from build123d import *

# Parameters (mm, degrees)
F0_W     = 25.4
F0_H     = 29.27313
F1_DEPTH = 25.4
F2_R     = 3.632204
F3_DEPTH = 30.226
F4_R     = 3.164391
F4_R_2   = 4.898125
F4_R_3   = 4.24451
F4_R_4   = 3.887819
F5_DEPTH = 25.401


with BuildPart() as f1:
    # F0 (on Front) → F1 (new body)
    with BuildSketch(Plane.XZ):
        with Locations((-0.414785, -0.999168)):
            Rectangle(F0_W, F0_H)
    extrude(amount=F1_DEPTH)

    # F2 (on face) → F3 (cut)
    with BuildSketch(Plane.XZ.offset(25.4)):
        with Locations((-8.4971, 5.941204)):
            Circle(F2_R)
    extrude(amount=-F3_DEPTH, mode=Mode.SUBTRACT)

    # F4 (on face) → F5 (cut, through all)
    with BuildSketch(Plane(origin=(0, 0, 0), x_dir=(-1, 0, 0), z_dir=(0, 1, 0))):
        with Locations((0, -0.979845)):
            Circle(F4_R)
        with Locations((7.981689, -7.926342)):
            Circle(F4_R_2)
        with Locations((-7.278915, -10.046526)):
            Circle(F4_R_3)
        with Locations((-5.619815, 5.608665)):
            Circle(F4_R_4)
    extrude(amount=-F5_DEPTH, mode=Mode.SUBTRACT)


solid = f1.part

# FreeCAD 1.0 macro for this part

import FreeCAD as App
import Part
import Sketcher
Q = App.Units.Quantity


def add_polygon(sketch, points):
    """Adds a closed chain of lines whose ends are joined by coincident constraints."""
    first, n = sketch.GeometryCount, len(points)
    for a, b in zip(points, points[1:] + points[:1]):
        sketch.addGeometry(Part.LineSegment(App.Vector(*a, 0), App.Vector(*b, 0)), False)
    for i in range(n):
        sketch.addConstraint(Sketcher.Constraint("Coincident", first + i, 2, first + (i + 1) % n, 1))

doc = App.newDocument("Part")
body = doc.addObject("PartDesign::Body", "Body")

# Sketch on XZ plane
sketch1 = doc.addObject("Sketcher::SketchObject", "Sketch")
body.addObject(sketch1)
sketch1.AttachmentSupport = (doc.XZ_Plane, [""])
sketch1.MapMode = "FlatFace"
add_polygon(sketch1, [(-13.114785, 13.637397), (-13.114785, -15.635733), (12.285215, -15.635733), (12.285215, 13.637397)])  # lines 0-3
sketch1.addConstraint([
    Sketcher.Constraint("Vertical", 0),
    Sketcher.Constraint("Horizontal", 1),
    Sketcher.Constraint("Vertical", 2),
    Sketcher.Constraint("Horizontal", 3),
    Sketcher.Constraint("DistanceX", 1, 1, 1, 2, Q("1 in")),
    Sketcher.Constraint("DistanceY", 0, 2, 0, 1, Q("29.27313 mm")),
    Sketcher.Constraint("DistanceX", 0, 2, -1, 1, Q("13.114785 mm")),
    Sketcher.Constraint("DistanceY", 0, 2, -1, 1, Q("15.635733 mm")),
])
pad1 = doc.addObject("PartDesign::Pad", "Pad")
body.addObject(pad1)
pad1.Profile = sketch1
pad1.Length = Q("1 in")

# Sketch on XZ plane
sketch2 = doc.addObject("Sketcher::SketchObject", "Sketch001")
body.addObject(sketch2)
sketch2.AttachmentSupport = (doc.XZ_Plane, [""])
sketch2.MapMode = "FlatFace"
sketch2.AttachmentOffset = App.Placement(App.Vector(0, 0, 1 * 25.4), App.Rotation())
sketch2.addGeometry(Part.Circle(App.Vector(-8.4971, 5.941204, 0), App.Vector(0, 0, 1), 3.632204), False)
sketch2.addConstraint([
    Sketcher.Constraint("Diameter", 0, Q("7.264408 mm")),
    Sketcher.Constraint("DistanceX", 0, 3, -1, 1, Q("8.4971 mm")),
    Sketcher.Constraint("DistanceY", -1, 1, 0, 3, Q("5.941204 mm")),
])
pocket1 = doc.addObject("PartDesign::Pocket", "Pocket")
body.addObject(pocket1)
pocket1.Profile = sketch2
pocket1.Length = Q("1.19 in")

# Sketch on XZ plane
sketch3 = doc.addObject("Sketcher::SketchObject", "Sketch002")
body.addObject(sketch3)
sketch3.AttachmentSupport = (doc.XZ_Plane, [""])
sketch3.MapMode = "FlatFace"
sketch3.addGeometry([
    Part.Circle(App.Vector(0, -0.979845, 0), App.Vector(0, 0, 1), 3.164391),
    Part.Circle(App.Vector(-7.981689, -7.926342, 0), App.Vector(0, 0, 1), 4.898125),
    Part.Circle(App.Vector(7.278915, -10.046526, 0), App.Vector(0, 0, 1), 4.24451),
    Part.Circle(App.Vector(5.619815, 5.608665, 0), App.Vector(0, 0, 1), 3.887819),
], False)
sketch3.addConstraint([
    Sketcher.Constraint("PointOnObject", 0, 3, -2),
    Sketcher.Constraint("Diameter", 1, Q("9.79625 mm")),
    Sketcher.Constraint("Diameter", 2, Q("8.48902 mm")),
    Sketcher.Constraint("Diameter", 0, Q("6.328782 mm")),
    Sketcher.Constraint("Diameter", 3, Q("7.775638 mm")),
    Sketcher.Constraint("DistanceX", 3, 3, 2, 3, Q("1.6591 mm")),
    Sketcher.Constraint("DistanceX", 1, 3, -1, 1, Q("7.981689 mm")),
    Sketcher.Constraint("DistanceY", 2, 3, 0, 3, Q("9.066681 mm")),
    Sketcher.Constraint("DistanceY", 0, 3, 3, 3, Q("6.58851 mm")),
    Sketcher.Constraint("DistanceY", 0, 3, -1, 1, Q("0.979845 mm")),
    Sketcher.Constraint("DistanceY", 1, 3, -1, 1, Q("7.926342 mm")),
    Sketcher.Constraint("DistanceX", -1, 1, 2, 3, Q("7.278915 mm")),
])
pocket2 = doc.addObject("PartDesign::Pocket", "Pocket001")
body.addObject(pocket2)
pocket2.Profile = sketch3
pocket2.Type = "ThroughAll"
pocket2.Reversed = True

doc.recompute()
